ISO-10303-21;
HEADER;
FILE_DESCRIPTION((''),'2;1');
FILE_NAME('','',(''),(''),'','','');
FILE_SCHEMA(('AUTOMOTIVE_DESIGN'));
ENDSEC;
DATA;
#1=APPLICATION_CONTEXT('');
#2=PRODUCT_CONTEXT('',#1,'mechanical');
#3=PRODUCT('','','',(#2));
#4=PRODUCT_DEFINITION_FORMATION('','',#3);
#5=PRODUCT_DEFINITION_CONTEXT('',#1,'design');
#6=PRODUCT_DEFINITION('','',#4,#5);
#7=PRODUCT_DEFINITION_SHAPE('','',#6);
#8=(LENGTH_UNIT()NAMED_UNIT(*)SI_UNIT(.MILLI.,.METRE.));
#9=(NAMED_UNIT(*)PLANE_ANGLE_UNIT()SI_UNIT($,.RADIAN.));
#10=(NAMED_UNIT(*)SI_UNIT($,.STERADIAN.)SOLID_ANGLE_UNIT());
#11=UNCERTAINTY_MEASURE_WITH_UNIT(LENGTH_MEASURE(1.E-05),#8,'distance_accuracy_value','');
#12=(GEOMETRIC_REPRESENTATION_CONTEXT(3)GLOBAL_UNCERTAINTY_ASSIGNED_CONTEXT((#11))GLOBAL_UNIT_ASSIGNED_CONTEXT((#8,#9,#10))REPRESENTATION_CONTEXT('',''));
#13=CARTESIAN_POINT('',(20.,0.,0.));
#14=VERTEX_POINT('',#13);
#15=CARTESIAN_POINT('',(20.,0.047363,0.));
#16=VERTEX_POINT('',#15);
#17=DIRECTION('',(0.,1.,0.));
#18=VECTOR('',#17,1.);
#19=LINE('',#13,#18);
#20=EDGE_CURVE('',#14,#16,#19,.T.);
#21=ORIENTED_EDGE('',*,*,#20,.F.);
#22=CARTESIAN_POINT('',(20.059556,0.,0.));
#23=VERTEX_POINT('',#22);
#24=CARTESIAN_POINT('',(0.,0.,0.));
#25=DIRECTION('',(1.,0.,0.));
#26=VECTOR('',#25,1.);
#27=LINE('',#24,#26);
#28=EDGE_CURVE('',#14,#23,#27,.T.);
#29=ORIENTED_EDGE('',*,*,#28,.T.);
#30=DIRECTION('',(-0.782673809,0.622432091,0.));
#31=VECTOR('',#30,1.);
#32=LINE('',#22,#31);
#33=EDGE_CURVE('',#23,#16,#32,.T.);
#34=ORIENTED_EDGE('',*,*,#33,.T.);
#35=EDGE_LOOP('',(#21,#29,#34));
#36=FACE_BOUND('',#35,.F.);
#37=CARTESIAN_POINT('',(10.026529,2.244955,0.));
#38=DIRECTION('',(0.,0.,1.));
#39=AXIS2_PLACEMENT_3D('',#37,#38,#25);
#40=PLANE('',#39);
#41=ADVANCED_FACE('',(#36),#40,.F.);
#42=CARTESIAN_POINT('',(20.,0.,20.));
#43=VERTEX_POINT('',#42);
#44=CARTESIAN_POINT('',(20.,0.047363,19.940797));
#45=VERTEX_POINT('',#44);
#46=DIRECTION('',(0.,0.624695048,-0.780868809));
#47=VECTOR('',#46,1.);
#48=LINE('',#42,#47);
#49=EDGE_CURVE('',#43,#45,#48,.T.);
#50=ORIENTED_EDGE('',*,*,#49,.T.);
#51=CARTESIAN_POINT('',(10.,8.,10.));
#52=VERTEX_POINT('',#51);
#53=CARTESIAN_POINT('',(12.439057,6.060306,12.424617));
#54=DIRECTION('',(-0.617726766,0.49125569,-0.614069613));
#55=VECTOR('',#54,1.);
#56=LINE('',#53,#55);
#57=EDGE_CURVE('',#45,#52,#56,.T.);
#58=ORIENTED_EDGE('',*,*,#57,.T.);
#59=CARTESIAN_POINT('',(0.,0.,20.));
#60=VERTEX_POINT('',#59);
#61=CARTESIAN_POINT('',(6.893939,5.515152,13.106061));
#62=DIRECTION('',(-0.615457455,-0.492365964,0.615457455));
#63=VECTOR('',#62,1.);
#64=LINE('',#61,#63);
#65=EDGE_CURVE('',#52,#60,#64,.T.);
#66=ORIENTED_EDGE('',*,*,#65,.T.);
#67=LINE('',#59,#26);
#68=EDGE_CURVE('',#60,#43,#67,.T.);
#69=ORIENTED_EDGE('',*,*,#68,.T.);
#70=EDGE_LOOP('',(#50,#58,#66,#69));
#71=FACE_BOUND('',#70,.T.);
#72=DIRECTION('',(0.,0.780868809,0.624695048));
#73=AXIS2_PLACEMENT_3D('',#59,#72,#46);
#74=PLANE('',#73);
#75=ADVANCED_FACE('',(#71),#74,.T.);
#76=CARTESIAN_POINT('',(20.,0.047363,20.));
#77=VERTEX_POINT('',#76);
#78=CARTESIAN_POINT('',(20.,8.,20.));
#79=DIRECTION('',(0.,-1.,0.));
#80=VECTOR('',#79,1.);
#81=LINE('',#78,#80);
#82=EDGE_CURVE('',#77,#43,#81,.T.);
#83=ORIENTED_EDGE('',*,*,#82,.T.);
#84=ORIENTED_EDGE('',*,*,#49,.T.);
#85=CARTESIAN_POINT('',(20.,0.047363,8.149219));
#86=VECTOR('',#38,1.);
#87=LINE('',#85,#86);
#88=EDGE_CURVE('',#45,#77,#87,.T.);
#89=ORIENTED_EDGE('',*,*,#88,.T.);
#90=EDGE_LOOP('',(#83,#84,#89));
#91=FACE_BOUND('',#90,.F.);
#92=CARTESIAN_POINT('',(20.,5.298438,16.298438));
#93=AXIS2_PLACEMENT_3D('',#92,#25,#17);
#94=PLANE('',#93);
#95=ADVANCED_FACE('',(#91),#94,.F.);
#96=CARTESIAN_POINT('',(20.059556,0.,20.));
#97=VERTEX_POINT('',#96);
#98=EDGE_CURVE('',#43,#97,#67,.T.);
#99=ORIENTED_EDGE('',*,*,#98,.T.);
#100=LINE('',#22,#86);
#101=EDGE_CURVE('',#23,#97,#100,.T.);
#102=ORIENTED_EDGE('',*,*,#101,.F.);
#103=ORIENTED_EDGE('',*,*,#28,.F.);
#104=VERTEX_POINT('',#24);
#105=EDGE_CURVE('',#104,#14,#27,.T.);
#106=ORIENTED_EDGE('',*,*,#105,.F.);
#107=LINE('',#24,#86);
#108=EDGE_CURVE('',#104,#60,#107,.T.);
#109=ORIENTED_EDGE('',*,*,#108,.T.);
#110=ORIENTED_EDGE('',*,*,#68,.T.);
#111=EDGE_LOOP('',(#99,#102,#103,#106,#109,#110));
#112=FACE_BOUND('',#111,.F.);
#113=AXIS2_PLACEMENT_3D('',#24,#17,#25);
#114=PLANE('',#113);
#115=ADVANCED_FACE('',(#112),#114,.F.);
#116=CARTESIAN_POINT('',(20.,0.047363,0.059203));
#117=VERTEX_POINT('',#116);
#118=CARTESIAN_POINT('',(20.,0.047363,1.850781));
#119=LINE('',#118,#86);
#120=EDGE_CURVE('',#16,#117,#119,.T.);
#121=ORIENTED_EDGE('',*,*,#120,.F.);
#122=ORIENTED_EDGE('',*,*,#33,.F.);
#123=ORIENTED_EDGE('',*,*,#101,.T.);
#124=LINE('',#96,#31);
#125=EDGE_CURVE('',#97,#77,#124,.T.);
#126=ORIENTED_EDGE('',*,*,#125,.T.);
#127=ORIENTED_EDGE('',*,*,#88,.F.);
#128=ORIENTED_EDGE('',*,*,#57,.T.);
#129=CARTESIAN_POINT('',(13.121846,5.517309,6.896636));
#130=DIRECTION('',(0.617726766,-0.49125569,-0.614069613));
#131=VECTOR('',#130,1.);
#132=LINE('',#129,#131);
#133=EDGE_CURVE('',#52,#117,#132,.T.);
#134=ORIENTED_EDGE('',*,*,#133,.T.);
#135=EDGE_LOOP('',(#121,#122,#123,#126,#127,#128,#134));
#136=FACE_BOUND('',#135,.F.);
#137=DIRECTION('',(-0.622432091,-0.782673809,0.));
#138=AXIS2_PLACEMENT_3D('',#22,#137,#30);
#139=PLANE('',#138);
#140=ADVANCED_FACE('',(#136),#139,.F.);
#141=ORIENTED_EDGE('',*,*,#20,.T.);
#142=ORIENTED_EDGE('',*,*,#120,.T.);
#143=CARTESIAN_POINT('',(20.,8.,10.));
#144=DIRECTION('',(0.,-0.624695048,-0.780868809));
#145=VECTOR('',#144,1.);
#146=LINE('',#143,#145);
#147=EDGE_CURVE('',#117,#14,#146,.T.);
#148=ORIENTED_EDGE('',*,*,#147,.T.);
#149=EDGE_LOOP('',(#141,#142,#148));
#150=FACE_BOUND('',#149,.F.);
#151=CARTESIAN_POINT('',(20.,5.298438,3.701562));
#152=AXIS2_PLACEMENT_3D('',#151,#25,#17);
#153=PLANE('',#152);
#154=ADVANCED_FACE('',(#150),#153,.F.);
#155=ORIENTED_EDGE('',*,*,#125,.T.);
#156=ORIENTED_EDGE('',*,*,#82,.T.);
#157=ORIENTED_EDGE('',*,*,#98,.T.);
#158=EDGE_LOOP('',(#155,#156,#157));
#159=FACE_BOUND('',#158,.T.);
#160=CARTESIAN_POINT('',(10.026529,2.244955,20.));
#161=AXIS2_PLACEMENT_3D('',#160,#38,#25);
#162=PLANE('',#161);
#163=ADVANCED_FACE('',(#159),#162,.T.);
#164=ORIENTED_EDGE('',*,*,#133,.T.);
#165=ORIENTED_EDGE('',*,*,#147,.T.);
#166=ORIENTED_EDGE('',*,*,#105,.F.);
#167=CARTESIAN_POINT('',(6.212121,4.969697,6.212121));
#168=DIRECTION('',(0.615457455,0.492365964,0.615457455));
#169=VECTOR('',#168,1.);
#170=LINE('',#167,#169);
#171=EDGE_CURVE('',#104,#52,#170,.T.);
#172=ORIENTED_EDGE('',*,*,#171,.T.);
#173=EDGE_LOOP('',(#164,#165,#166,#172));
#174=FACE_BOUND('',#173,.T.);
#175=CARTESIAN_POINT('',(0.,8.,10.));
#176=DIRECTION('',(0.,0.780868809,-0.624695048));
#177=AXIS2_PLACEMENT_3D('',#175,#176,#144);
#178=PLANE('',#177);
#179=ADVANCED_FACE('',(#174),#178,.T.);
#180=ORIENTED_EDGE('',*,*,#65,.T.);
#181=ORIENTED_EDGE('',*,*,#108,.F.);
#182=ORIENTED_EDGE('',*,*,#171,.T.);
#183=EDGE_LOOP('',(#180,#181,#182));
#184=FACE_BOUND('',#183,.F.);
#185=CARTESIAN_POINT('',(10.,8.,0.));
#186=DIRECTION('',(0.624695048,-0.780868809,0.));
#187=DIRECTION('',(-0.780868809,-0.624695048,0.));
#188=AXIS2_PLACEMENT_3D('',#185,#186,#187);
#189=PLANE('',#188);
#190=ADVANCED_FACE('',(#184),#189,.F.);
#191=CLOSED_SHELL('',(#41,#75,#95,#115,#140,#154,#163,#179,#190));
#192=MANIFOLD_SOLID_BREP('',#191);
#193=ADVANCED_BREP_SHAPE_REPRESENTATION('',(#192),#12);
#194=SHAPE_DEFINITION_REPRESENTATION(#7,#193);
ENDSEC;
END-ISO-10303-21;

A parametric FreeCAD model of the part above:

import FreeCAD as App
import Part
import Sketcher

doc = App.newDocument("Part")
body = doc.addObject("PartDesign::Body", "Body")

# Sketch on XY plane
sketch1 = doc.addObject("Sketcher::SketchObject", "Sketch")
body.addObject(sketch1)
sketch1.AttachmentSupport = (doc.XY_Plane, [""])
sketch1.MapMode = "FlatFace"
sketch1.addGeometry(Part.LineSegment(App.Vector(10, 8, 0), App.Vector(0, 0, 0)), False)
sketch1.addGeometry(Part.LineSegment(App.Vector(0, 0, 0), App.Vector(20, 0, 0)), False)
sketch1.addGeometry(Part.LineSegment(App.Vector(20, 0, 0), App.Vector(10, 8, 0)), False)
sketch1.addConstraint(Sketcher.Constraint("Coincident", 0, 2, 1, 1))
sketch1.addConstraint(Sketcher.Constraint("Coincident", 1, 2, 2, 1))
sketch1.addConstraint(Sketcher.Constraint("Coincident", 2, 2, 0, 1))
sketch1.addConstraint(Sketcher.Constraint("Horizontal", 1))
sketch1.addConstraint(Sketcher.Constraint("Coincident", 0, 2, -1, 1))
sketch1.addConstraint(Sketcher.Constraint("DistanceX", -1, 1, 2, 2, 10.0))
sketch1.addConstraint(Sketcher.Constraint("DistanceY", -1, 1, 2, 2, 8.0))
sketch1.addConstraint(Sketcher.Constraint("DistanceX", 1, 1, 1, 2, 20.059556))
pad1 = doc.addObject("PartDesign::Pad", "Pad")
body.addObject(pad1)
pad1.Profile = sketch1
pad1.Length = 20

# Sketch on YZ plane
sketch2 = doc.addObject("Sketcher::SketchObject", "Sketch001")
body.addObject(sketch2)
sketch2.AttachmentSupport = (doc.YZ_Plane, [""])
sketch2.MapMode = "FlatFace"
sketch2.addGeometry(Part.LineSegment(App.Vector(8, 10, 0), App.Vector(0, 0, 0)), False)
sketch2.addGeometry(Part.LineSegment(App.Vector(0, 0, 0), App.Vector(8, 0, 0)), False)
sketch2.addGeometry(Part.LineSegment(App.Vector(8, 0, 0), App.Vector(8, 10, 0)), False)
sketch2.addGeometry(Part.LineSegment(App.Vector(0, 20, 0), App.Vector(8, 10, 0)), False)
sketch2.addGeometry(Part.LineSegment(App.Vector(8, 10, 0), App.Vector(8, 20, 0)), False)
sketch2.addGeometry(Part.LineSegment(App.Vector(8, 20, 0), App.Vector(0, 20, 0)), False)
sketch2.addConstraint(Sketcher.Constraint("Coincident", 0, 2, 1, 1))
sketch2.addConstraint(Sketcher.Constraint("Coincident", 1, 2, 2, 1))
sketch2.addConstraint(Sketcher.Constraint("Coincident", 2, 2, 0, 1))
sketch2.addConstraint(Sketcher.Constraint("Coincident", 3, 2, 4, 1))
sketch2.addConstraint(Sketcher.Constraint("Coincident", 4, 2, 5, 1))
sketch2.addConstraint(Sketcher.Constraint("Coincident", 5, 2, 3, 1))
sketch2.addConstraint(Sketcher.Constraint("Horizontal", 1))
sketch2.addConstraint(Sketcher.Constraint("Vertical", 2))
sketch2.addConstraint(Sketcher.Constraint("Vertical", 4))
sketch2.addConstraint(Sketcher.Constraint("Horizontal", 5))
sketch2.addConstraint(Sketcher.Constraint("Coincident", 0, 2, -1, 1))
sketch2.addConstraint(Sketcher.Constraint("Coincident", 3, 2, 2, 2))
sketch2.addConstraint(Sketcher.Constraint("PointOnObject", 5, 2, -2))
sketch2.addConstraint(Sketcher.Constraint("Equal", 2, 4))
sketch2.addConstraint(Sketcher.Constraint("DistanceX", 1, 1, 1, 2, 8.0))
sketch2.addConstraint(Sketcher.Constraint("DistanceY", 2, 1, 2, 2, 10.0))
pocket1 = doc.addObject("PartDesign::Pocket", "Pocket")
body.addObject(pocket1)
pocket1.Profile = sketch2
pocket1.Length = 20
pocket1.Reversed = True

doc.recompute()
